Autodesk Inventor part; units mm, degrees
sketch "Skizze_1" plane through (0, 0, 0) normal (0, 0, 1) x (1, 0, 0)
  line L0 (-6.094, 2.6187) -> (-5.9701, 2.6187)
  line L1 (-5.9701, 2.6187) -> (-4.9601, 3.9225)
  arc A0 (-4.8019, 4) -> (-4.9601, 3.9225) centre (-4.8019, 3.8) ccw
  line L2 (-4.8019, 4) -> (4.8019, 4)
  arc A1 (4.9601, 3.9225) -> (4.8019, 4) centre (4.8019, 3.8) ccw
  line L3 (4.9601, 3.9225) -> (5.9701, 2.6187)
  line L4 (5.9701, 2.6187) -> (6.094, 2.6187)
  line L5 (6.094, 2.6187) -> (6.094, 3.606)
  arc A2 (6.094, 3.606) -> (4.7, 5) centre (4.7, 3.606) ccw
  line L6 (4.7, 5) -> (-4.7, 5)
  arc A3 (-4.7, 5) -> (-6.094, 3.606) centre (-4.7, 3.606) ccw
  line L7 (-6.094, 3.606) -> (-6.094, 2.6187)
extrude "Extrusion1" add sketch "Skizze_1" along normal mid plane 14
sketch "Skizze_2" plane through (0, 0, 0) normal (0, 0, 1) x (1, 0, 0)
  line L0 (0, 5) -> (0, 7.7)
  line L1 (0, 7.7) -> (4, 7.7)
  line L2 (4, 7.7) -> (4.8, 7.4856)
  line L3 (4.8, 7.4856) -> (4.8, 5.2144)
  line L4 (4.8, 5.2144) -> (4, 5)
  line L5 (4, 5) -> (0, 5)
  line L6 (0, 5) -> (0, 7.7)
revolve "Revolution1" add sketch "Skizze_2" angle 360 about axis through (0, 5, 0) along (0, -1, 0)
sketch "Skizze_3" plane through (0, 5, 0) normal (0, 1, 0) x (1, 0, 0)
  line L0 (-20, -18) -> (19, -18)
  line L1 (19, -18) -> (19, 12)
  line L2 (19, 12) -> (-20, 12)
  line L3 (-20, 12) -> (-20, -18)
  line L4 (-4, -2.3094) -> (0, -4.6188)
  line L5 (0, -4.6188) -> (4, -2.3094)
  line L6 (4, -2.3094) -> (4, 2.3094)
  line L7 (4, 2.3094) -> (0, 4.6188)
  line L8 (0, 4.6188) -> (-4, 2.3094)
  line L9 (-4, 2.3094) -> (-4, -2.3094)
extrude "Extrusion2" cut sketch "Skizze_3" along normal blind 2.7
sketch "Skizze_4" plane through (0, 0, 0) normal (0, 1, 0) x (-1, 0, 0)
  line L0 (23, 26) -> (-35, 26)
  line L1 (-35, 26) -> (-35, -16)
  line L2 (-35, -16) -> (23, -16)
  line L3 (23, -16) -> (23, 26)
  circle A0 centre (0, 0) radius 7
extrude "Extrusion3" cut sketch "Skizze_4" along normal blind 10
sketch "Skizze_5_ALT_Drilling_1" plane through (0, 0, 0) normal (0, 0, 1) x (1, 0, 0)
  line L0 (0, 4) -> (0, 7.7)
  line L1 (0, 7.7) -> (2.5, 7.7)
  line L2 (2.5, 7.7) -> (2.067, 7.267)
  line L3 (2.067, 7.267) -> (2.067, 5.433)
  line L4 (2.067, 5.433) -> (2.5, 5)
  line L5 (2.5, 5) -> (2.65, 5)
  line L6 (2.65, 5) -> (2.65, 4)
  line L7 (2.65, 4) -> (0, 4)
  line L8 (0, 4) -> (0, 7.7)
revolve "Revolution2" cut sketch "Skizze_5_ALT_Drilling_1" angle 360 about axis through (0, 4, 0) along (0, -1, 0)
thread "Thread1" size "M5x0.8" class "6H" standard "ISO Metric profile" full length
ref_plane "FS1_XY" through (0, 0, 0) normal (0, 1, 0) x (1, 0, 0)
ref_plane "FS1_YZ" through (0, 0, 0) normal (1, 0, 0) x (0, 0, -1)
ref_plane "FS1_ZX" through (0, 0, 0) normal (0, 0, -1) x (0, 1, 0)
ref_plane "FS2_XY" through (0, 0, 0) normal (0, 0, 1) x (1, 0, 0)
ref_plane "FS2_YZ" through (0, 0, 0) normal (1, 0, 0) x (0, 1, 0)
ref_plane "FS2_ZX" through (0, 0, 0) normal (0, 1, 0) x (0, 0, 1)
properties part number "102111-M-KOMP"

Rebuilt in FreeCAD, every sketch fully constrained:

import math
import FreeCAD as App
import Part
import Sketcher

V = App.Vector
Q = App.Units.Quantity

doc = App.newDocument("Part")
body = doc.addObject("PartDesign::Body", "Body")

# Sketch on XY plane
sketch1 = body.newObject("Sketcher::SketchObject", "Sketch")
sketch1.AttachmentSupport = (doc.getObject("XY_Plane"), [""])
sketch1.MapMode = "FlatFace"
sketch1.addGeometry(Part.LineSegment(V(-6.09, 3.61, 0), V(-6.09, 2.62, 0)), False)
sketch1.addGeometry(Part.LineSegment(V(-6.09, 2.62, 0), V(-5.97, 2.62, 0)), False)
sketch1.addGeometry(Part.LineSegment(V(-5.97, 2.62, 0), V(-4.96, 3.92, 0)), False)
sketch1.addGeometry(Part.ArcOfCircle(Part.Circle(V(-4.8, 3.8, 0), V(0, 0, 1), 0.2), math.radians(90), math.radians(142)), False)
sketch1.addGeometry(Part.LineSegment(V(-4.8, 4, 0), V(4.8, 4, 0)), False)
sketch1.addGeometry(Part.ArcOfCircle(Part.Circle(V(4.8, 3.8, 0), V(0, 0, 1), 0.2), math.radians(38), math.radians(90)), False)
sketch1.addGeometry(Part.LineSegment(V(4.96, 3.92, 0), V(5.97, 2.62, 0)), False)
sketch1.addGeometry(Part.LineSegment(V(5.97, 2.62, 0), V(6.09, 2.62, 0)), False)
sketch1.addGeometry(Part.LineSegment(V(6.09, 2.62, 0), V(6.09, 3.61, 0)), False)
sketch1.addGeometry(Part.ArcOfCircle(Part.Circle(V(4.7, 3.61, 0), V(0, 0, 1), 1.39), math.radians(0), math.radians(90)), False)
sketch1.addGeometry(Part.LineSegment(V(4.7, 5, 0), V(-4.7, 5, 0)), False)
sketch1.addGeometry(Part.ArcOfCircle(Part.Circle(V(-4.7, 3.61, 0), V(0, 0, 1), 1.39), math.radians(90), math.radians(180)), False)
sketch1.addConstraint(Sketcher.Constraint("Coincident", 0, 2, 1, 1))
sketch1.addConstraint(Sketcher.Constraint("Coincident", 1, 2, 2, 1))
sketch1.addConstraint(Sketcher.Constraint("Tangent", 2, 2, 3, 2))
sketch1.addConstraint(Sketcher.Constraint("Tangent", 3, 1, 4, 1))
sketch1.addConstraint(Sketcher.Constraint("Tangent", 4, 2, 5, 2))
sketch1.addConstraint(Sketcher.Constraint("Tangent", 5, 1, 6, 1))
sketch1.addConstraint(Sketcher.Constraint("Coincident", 6, 2, 7, 1))
sketch1.addConstraint(Sketcher.Constraint("Coincident", 7, 2, 8, 1))
sketch1.addConstraint(Sketcher.Constraint("Tangent", 8, 2, 9, 1))
sketch1.addConstraint(Sketcher.Constraint("Tangent", 9, 2, 10, 1))
sketch1.addConstraint(Sketcher.Constraint("Tangent", 10, 2, 11, 1))
sketch1.addConstraint(Sketcher.Constraint("Tangent", 11, 2, 0, 1))
sketch1.addConstraint(Sketcher.Constraint("Vertical", 0))
sketch1.addConstraint(Sketcher.Constraint("Horizontal", 1))
sketch1.addConstraint(Sketcher.Constraint("Horizontal", 4))
sketch1.addConstraint(Sketcher.Constraint("Horizontal", 7))
sketch1.addConstraint(Sketcher.Constraint("Vertical", 8))
sketch1.addConstraint(Sketcher.Constraint("Horizontal", 10))
sketch1.addConstraint(Sketcher.Constraint("Equal", 3, 5))
sketch1.addConstraint(Sketcher.Constraint("Equal", 9, 11))
sketch1.addConstraint(Sketcher.Constraint("Symmetric", 2, 2, 5, 1, -2))
sketch1.addConstraint(Sketcher.Constraint("Symmetric", 0, 2, 7, 2, -2))
sketch1.addConstraint(Sketcher.Constraint("Radius", 3, 0.2))
sketch1.addConstraint(Sketcher.Constraint("DistanceX", 10, 2, 10, 1, 9.4))
sketch1.addConstraint(Sketcher.Constraint("DistanceY", -1, 1, 3, 1, 4.0))
sketch1.addConstraint(Sketcher.Constraint("DistanceY", -1, 1, 9, 2, 5.0))
sketch1.addConstraint(Sketcher.Constraint("Radius", 9, 1.394))
sketch1.addConstraint(Sketcher.Constraint("DistanceX", 1, 1, 1, 2, 0.124))
sketch1.addConstraint(Sketcher.Constraint("DistanceX", 2, 2, -1, 1, 4.96))
sketch1.addConstraint(Sketcher.Constraint("DistanceX", 4, 1, 4, 2, 9.6038))
pad1 = body.newObject("PartDesign::Pad", "Pad")
pad1.Profile = sketch1
pad1.Length = 14
pad1.Midplane = True

# Sketch on XY plane
sketch2 = body.newObject("Sketcher::SketchObject", "Sketch001")
sketch2.AttachmentSupport = (doc.getObject("XY_Plane"), [""])
sketch2.MapMode = "FlatFace"
sketch2.addGeometry(Part.LineSegment(V(0, 7.7, 0), V(0, 5, 0)), False)
sketch2.addGeometry(Part.LineSegment(V(0, 5, 0), V(4, 5, 0)), False)
sketch2.addGeometry(Part.LineSegment(V(4, 5, 0), V(4.8, 5.2, 0)), False)
sketch2.addGeometry(Part.LineSegment(V(4.8, 5.2, 0), V(4.8, 7.5, 0)), False)
sketch2.addGeometry(Part.LineSegment(V(4.8, 7.5, 0), V(4, 7.7, 0)), False)
sketch2.addGeometry(Part.LineSegment(V(4, 7.7, 0), V(0, 7.7, 0)), False)
sketch2.addConstraint(Sketcher.Constraint("Coincident", 0, 2, 1, 1))
sketch2.addConstraint(Sketcher.Constraint("Coincident", 1, 2, 2, 1))
sketch2.addConstraint(Sketcher.Constraint("Coincident", 2, 2, 3, 1))
sketch2.addConstraint(Sketcher.Constraint("Coincident", 3, 2, 4, 1))
sketch2.addConstraint(Sketcher.Constraint("Coincident", 4, 2, 5, 1))
sketch2.addConstraint(Sketcher.Constraint("Coincident", 5, 2, 0, 1))
sketch2.addConstraint(Sketcher.Constraint("Vertical", 0))
sketch2.addConstraint(Sketcher.Constraint("Horizontal", 1))
sketch2.addConstraint(Sketcher.Constraint("Vertical", 3))
sketch2.addConstraint(Sketcher.Constraint("Horizontal", 5))
sketch2.addConstraint(Sketcher.Constraint("PointOnObject", 0, 2, -2))
sketch2.addConstraint(Sketcher.Constraint("Vertical", 1, 2, 4, 2))
sketch2.addConstraint(Sketcher.Constraint("Equal", 2, 4))
sketch2.addConstraint(Sketcher.Constraint("DistanceX", 1, 1, 1, 2, 4.0))
sketch2.addConstraint(Sketcher.Constraint("DistanceY", 0, 2, 0, 1, 2.7))
sketch2.addConstraint(Sketcher.Constraint("DistanceY", -1, 1, 0, 2, 5.0))
sketch2.addConstraint(Sketcher.Constraint("DistanceX", -1, 1, 2, 2, 4.8))
sketch2.addConstraint(Sketcher.Constraint("DistanceY", 3, 1, 3, 2, 2.2712))
revolution = body.newObject("PartDesign::Revolution", "Revolution")
revolution.Profile = sketch2
revolution.ReferenceAxis = (sketch2, ["V_Axis"])
revolution.Angle = 360

# Sketch on XZ plane
sketch3 = body.newObject("Sketcher::SketchObject", "Sketch002")
sketch3.AttachmentSupport = (doc.getObject("XZ_Plane"), [""])
sketch3.MapMode = "FlatFace"
sketch3.AttachmentOffset = App.Placement(V(0, 0, -5), App.Rotation())
sketch3.addGeometry(Part.LineSegment(V(-20, -12, 0), V(-20, 18, 0)), False)
sketch3.addGeometry(Part.LineSegment(V(-20, 18, 0), V(19, 18, 0)), False)
sketch3.addGeometry(Part.LineSegment(V(19, 18, 0), V(19, -12, 0)), False)
sketch3.addGeometry(Part.LineSegment(V(19, -12, 0), V(-20, -12, 0)), False)
sketch3.addGeometry(Part.LineSegment(V(0, 4.6, 0), V(-4, 2.3, 0)), False)
sketch3.addGeometry(Part.LineSegment(V(-4, 2.3, 0), V(-4, -2.3, 0)), False)
sketch3.addGeometry(Part.LineSegment(V(-4, -2.3, 0), V(0, -4.6, 0)), False)
sketch3.addGeometry(Part.LineSegment(V(0, -4.6, 0), V(4, -2.3, 0)), False)
sketch3.addGeometry(Part.LineSegment(V(4, -2.3, 0), V(4, 2.3, 0)), False)
sketch3.addGeometry(Part.LineSegment(V(4, 2.3, 0), V(0, 4.6, 0)), False)
sketch3.addConstraint(Sketcher.Constraint("Coincident", 0, 2, 1, 1))
sketch3.addConstraint(Sketcher.Constraint("Coincident", 1, 2, 2, 1))
sketch3.addConstraint(Sketcher.Constraint("Coincident", 2, 2, 3, 1))
sketch3.addConstraint(Sketcher.Constraint("Coincident", 3, 2, 0, 1))
sketch3.addConstraint(Sketcher.Constraint("Coincident", 4, 2, 5, 1))
sketch3.addConstraint(Sketcher.Constraint("Coincident", 5, 2, 6, 1))
sketch3.addConstraint(Sketcher.Constraint("Coincident", 6, 2, 7, 1))
sketch3.addConstraint(Sketcher.Constraint("Coincident", 7, 2, 8, 1))
sketch3.addConstraint(Sketcher.Constraint("Coincident", 8, 2, 9, 1))
sketch3.addConstraint(Sketcher.Constraint("Coincident", 9, 2, 4, 1))
sketch3.addConstraint(Sketcher.Constraint("Vertical", 0))
sketch3.addConstraint(Sketcher.Constraint("Horizontal", 1))
sketch3.addConstraint(Sketcher.Constraint("Vertical", 2))
sketch3.addConstraint(Sketcher.Constraint("Horizontal", 3))
sketch3.addConstraint(Sketcher.Constraint("Vertical", 5))
sketch3.addConstraint(Sketcher.Constraint("Vertical", 8))
sketch3.addConstraint(Sketcher.Constraint("Symmetric", 4, 2, 7, 2, -1, 1))
sketch3.addConstraint(Sketcher.Constraint("Symmetric", 6, 2, 9, 2, -1, 1))
sketch3.addConstraint(Sketcher.Constraint("PointOnObject", 6, 2, -2))
sketch3.addConstraint(Sketcher.Constraint("Parallel", 6, 9))
sketch3.addConstraint(Sketcher.Constraint("Horizontal", 5, 2, 7, 2))
sketch3.addConstraint(Sketcher.Constraint("DistanceX", 1, 1, 1, 2, 39.0))
sketch3.addConstraint(Sketcher.Constraint("DistanceY", 0, 1, 0, 2, 30.0))
sketch3.addConstraint(Sketcher.Constraint("Angle", 4, Q("-150 deg")))
sketch3.addConstraint(Sketcher.Constraint("DistanceX", 0, 2, -1, 1, 20.0))
sketch3.addConstraint(Sketcher.Constraint("DistanceY", -1, 1, 0, 2, 18.0))
sketch3.addConstraint(Sketcher.Constraint("DistanceX", 4, 2, -1, 1, 4.0))
sketch3.addConstraint(Sketcher.Constraint("DistanceY", 5, 2, 5, 1, 4.6188))
pocket1 = body.newObject("PartDesign::Pocket", "Pocket")
pocket1.Profile = sketch3
pocket1.Length = 2.7

# Sketch on XZ plane
sketch4 = body.newObject("Sketcher::SketchObject", "Sketch003")
sketch4.AttachmentSupport = (doc.getObject("XZ_Plane"), [""])
sketch4.MapMode = "FlatFace"
sketch4.addGeometry(Part.LineSegment(V(-23, -16, 0), V(-23, 26, 0)), False)
sketch4.addGeometry(Part.LineSegment(V(-23, 26, 0), V(35, 26, 0)), False)
sketch4.addGeometry(Part.LineSegment(V(35, 26, 0), V(35, -16, 0)), False)
sketch4.addGeometry(Part.LineSegment(V(35, -16, 0), V(-23, -16, 0)), False)
sketch4.addGeometry(Part.Circle(V(0, 0, 0), V(0, 0, 1), 7), False)
sketch4.addConstraint(Sketcher.Constraint("Coincident", 0, 2, 1, 1))
sketch4.addConstraint(Sketcher.Constraint("Coincident", 1, 2, 2, 1))
sketch4.addConstraint(Sketcher.Constraint("Coincident", 2, 2, 3, 1))
sketch4.addConstraint(Sketcher.Constraint("Coincident", 3, 2, 0, 1))
sketch4.addConstraint(Sketcher.Constraint("Vertical", 0))
sketch4.addConstraint(Sketcher.Constraint("Horizontal", 1))
sketch4.addConstraint(Sketcher.Constraint("Vertical", 2))
sketch4.addConstraint(Sketcher.Constraint("Horizontal", 3))
sketch4.addConstraint(Sketcher.Constraint("Coincident", 4, 3, -1, 1))
sketch4.addConstraint(Sketcher.Constraint("Diameter", 4, 14.0))
sketch4.addConstraint(Sketcher.Constraint("DistanceX", 1, 1, 1, 2, 58.0))
sketch4.addConstraint(Sketcher.Constraint("DistanceY", 0, 1, 0, 2, 42.0))
sketch4.addConstraint(Sketcher.Constraint("DistanceX", 0, 2, -1, 1, 23.0))
sketch4.addConstraint(Sketcher.Constraint("DistanceY", -1, 1, 0, 2, 26.0))
pocket2 = body.newObject("PartDesign::Pocket", "Pocket001")
pocket2.Profile = sketch4
pocket2.Length = 10

# Sketch on XY plane
sketch5 = body.newObject("Sketcher::SketchObject", "Sketch004")
sketch5.AttachmentSupport = (doc.getObject("XY_Plane"), [""])
sketch5.MapMode = "FlatFace"
sketch5.addGeometry(Part.LineSegment(V(0, 7.7, 0), V(0, 4, 0)), False)
sketch5.addGeometry(Part.LineSegment(V(0, 4, 0), V(2.65, 4, 0)), False)
sketch5.addGeometry(Part.LineSegment(V(2.65, 4, 0), V(2.65, 5, 0)), False)
sketch5.addGeometry(Part.LineSegment(V(2.65, 5, 0), V(2.5, 5, 0)), False)
sketch5.addGeometry(Part.LineSegment(V(2.5, 5, 0), V(2.07, 5.43, 0)), False)
sketch5.addGeometry(Part.LineSegment(V(2.07, 5.43, 0), V(2.07, 7.27, 0)), False)
sketch5.addGeometry(Part.LineSegment(V(2.07, 7.27, 0), V(2.5, 7.7, 0)), False)
sketch5.addGeometry(Part.LineSegment(V(2.5, 7.7, 0), V(0, 7.7, 0)), False)
sketch5.addConstraint(Sketcher.Constraint("Coincident", 0, 2, 1, 1))
sketch5.addConstraint(Sketcher.Constraint("Coincident", 1, 2, 2, 1))
sketch5.addConstraint(Sketcher.Constraint("Coincident", 2, 2, 3, 1))
sketch5.addConstraint(Sketcher.Constraint("Coincident", 3, 2, 4, 1))
sketch5.addConstraint(Sketcher.Constraint("Coincident", 4, 2, 5, 1))
sketch5.addConstraint(Sketcher.Constraint("Coincident", 5, 2, 6, 1))
sketch5.addConstraint(Sketcher.Constraint("Coincident", 6, 2, 7, 1))
sketch5.addConstraint(Sketcher.Constraint("Coincident", 7, 2, 0, 1))
sketch5.addConstraint(Sketcher.Constraint("Vertical", 0))
sketch5.addConstraint(Sketcher.Constraint("Horizontal", 1))
sketch5.addConstraint(Sketcher.Constraint("Vertical", 2))
sketch5.addConstraint(Sketcher.Constraint("Horizontal", 3))
sketch5.addConstraint(Sketcher.Constraint("Vertical", 5))
sketch5.addConstraint(Sketcher.Constraint("Horizontal", 7))
sketch5.addConstraint(Sketcher.Constraint("PointOnObject", 0, 2, -2))
sketch5.addConstraint(Sketcher.Constraint("Perpendicular", 4, 6))
sketch5.addConstraint(Sketcher.Constraint("Vertical", 3, 2, 6, 2))
sketch5.addConstraint(Sketcher.Constraint("Equal", 4, 6))
sketch5.addConstraint(Sketcher.Constraint("DistanceY", 2, 1, 2, 2, 1.0))
sketch5.addConstraint(Sketcher.Constraint("DistanceX", 7, 2, 7, 1, 2.5))
sketch5.addConstraint(Sketcher.Constraint("DistanceY", 0, 2, 0, 1, 3.7))
sketch5.addConstraint(Sketcher.Constraint("DistanceY", -1, 1, 0, 2, 4.0))
sketch5.addConstraint(Sketcher.Constraint("DistanceX", 1, 1, 1, 2, 2.65))
sketch5.addConstraint(Sketcher.Constraint("DistanceY", 5, 1, 5, 2, 1.834))
groove = body.newObject("PartDesign::Groove", "Groove")
groove.Profile = sketch5
groove.ReferenceAxis = (sketch5, ["V_Axis"])
groove.Angle = 360

doc.recompute()
